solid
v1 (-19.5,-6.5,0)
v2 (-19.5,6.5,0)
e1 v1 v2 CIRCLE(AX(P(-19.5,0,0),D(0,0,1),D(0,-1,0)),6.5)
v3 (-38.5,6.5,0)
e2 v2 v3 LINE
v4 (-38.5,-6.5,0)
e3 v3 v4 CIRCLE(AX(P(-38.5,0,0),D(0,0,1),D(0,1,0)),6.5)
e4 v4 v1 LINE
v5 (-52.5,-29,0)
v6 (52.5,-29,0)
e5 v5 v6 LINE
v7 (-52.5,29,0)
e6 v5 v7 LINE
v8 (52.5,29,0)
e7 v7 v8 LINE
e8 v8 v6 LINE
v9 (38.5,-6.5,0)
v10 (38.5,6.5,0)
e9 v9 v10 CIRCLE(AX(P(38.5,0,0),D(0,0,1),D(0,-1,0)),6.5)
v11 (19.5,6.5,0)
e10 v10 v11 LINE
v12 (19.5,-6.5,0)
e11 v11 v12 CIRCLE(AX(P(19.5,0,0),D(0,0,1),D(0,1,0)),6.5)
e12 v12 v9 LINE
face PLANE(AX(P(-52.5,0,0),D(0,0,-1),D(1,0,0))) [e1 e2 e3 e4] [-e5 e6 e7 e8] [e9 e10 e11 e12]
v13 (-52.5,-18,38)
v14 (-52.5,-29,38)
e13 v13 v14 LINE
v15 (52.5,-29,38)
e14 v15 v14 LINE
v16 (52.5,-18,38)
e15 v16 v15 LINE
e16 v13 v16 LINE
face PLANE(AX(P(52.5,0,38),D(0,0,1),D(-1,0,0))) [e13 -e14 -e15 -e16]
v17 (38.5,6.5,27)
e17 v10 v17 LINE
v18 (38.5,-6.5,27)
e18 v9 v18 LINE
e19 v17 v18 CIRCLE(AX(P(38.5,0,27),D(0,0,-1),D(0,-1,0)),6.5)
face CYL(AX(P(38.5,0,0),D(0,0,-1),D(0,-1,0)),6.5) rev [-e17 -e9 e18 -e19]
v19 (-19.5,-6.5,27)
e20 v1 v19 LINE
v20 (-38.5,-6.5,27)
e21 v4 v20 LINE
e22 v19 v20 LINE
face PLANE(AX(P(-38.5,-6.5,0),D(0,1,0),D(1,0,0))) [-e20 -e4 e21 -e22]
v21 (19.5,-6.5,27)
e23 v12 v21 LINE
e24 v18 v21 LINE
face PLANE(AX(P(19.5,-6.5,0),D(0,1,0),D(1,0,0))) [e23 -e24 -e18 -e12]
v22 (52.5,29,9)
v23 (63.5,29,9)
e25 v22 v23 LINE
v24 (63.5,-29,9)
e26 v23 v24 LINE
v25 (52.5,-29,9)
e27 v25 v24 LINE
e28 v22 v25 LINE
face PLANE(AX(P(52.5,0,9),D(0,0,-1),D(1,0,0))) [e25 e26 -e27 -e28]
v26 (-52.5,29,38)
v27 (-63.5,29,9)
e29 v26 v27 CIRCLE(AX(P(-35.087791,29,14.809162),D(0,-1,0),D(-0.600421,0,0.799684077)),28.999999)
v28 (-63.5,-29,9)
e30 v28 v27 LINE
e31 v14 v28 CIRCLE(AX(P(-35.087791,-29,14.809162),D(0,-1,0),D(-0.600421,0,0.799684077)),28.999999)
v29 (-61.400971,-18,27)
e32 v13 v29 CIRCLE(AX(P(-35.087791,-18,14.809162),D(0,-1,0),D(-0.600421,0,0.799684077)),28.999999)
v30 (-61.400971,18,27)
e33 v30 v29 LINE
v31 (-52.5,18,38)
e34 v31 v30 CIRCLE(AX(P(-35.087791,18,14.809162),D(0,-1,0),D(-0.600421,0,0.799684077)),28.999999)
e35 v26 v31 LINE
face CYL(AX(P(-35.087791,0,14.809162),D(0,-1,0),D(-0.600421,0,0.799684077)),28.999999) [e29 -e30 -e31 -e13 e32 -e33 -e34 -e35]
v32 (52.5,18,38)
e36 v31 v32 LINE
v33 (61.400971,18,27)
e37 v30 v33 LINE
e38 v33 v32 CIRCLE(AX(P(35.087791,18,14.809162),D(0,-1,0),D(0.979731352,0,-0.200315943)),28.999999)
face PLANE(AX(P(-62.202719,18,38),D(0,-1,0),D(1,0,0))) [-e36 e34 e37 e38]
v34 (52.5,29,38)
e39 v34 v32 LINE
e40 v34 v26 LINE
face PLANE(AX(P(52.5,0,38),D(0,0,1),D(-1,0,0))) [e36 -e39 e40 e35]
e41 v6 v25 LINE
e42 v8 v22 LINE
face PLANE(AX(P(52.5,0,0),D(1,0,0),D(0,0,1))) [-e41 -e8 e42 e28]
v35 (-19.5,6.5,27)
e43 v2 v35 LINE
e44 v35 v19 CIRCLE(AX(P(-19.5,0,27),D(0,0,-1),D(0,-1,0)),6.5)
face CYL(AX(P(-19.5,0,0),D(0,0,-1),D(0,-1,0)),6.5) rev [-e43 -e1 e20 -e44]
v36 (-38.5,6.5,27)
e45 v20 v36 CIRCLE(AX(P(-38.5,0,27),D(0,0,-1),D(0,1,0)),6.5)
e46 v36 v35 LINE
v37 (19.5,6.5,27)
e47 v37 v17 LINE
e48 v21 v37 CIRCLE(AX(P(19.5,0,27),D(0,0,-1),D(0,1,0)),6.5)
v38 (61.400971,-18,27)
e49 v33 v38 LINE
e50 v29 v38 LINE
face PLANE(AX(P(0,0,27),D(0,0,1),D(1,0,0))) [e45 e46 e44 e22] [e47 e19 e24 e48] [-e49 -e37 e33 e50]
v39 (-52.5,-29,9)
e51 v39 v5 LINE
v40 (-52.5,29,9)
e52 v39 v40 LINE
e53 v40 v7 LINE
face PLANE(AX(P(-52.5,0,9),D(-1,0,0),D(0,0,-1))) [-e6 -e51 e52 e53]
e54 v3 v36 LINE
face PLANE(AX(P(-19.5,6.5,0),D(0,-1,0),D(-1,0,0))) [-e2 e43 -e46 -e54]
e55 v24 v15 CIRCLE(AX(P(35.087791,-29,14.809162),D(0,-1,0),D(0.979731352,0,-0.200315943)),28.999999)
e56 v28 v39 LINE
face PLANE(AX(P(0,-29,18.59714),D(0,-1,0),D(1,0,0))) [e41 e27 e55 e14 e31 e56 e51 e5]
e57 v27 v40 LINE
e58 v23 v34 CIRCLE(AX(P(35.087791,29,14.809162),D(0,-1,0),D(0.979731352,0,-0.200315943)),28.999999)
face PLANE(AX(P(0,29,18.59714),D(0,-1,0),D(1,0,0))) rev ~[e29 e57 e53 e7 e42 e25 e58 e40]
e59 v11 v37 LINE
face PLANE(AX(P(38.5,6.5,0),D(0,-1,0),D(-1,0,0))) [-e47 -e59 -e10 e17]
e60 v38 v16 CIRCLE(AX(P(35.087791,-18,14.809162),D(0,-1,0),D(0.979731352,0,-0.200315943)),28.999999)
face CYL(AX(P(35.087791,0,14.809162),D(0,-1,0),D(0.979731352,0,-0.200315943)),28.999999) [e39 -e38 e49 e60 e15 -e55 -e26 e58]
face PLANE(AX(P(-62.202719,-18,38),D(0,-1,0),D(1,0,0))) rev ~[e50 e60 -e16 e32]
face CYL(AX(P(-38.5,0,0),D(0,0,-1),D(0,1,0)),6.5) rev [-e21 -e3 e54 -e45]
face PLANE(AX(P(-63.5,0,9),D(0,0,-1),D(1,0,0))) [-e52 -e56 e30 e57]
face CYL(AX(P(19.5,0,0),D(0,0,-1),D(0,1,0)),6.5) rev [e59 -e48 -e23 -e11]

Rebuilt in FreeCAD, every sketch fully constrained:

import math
import FreeCAD as App
import Part
import Sketcher
from FreeCAD import Vector
Q = App.Units.Quantity


def add_polygon(sketch, points):
    """Adds a closed chain of lines whose ends are joined by coincident constraints."""
    first, n = sketch.GeometryCount, len(points)
    for a, b in zip(points, points[1:] + points[:1]):
        sketch.addGeometry(Part.LineSegment(App.Vector(*a, 0), App.Vector(*b, 0)), False)
    for i in range(n):
        sketch.addConstraint(Sketcher.Constraint("Coincident", first + i, 2, first + (i + 1) % n, 1))

doc = App.newDocument("Part")
params = doc.addObject("Spreadsheet::Sheet", "Params")
for row, (alias, value) in enumerate([
    ("sketch1_radius", "28.999999 mm"),
    ("sketch1_width", "105 mm"),
    ("sketch1_width2", "11 mm"),
    ("sketch1_height", "9 mm"),
    ("pad1_length", "58 mm"),
    ("sketch2_height", "36 mm"),
    ("pocket1_length", "11 mm"),
    ("sketch3_radius", "6.5 mm"),
    ("sketch3_width", "19 mm"),
], start=1):
    params.set(f"A{row}", alias)
    params.set(f"B{row}", "=" + value)
    params.setAlias(f"B{row}", alias)

body = doc.addObject("PartDesign::Body", "Body")

# Sketch on XZ plane
sketch1 = body.newObject("Sketcher::SketchObject", "Sketch")
sketch1.AttachmentSupport = (doc.getObject("XZ_Plane"), [""])
sketch1.MapMode = "FlatFace"
sketch1.addGeometry(Part.LineSegment(Vector(-52, 0, 0), Vector(52, 0, 0)), False)
sketch1.addGeometry(Part.LineSegment(Vector(52, 0, 0), Vector(52, 9, 0)), False)
sketch1.addGeometry(Part.LineSegment(Vector(52, 9, 0), Vector(64, 9, 0)), False)
sketch1.addGeometry(Part.ArcOfCircle(Part.Circle(Vector(35, 15, 0), Vector(0, 0, 1), 29), math.radians(-12), math.radians(53)), False)
sketch1.addGeometry(Part.LineSegment(Vector(52, 38, 0), Vector(-52, 38, 0)), False)
sketch1.addGeometry(Part.ArcOfCircle(Part.Circle(Vector(-35, 15, 0), Vector(0, 0, 1), 29), math.radians(127), math.radians(192)), False)
sketch1.addGeometry(Part.LineSegment(Vector(-64, 9, 0), Vector(-52, 9, 0)), False)
sketch1.addGeometry(Part.LineSegment(Vector(-52, 9, 0), Vector(-52, 0, 0)), False)
sketch1.addConstraint(Sketcher.Constraint("Coincident", 0, 2, 1, 1))
sketch1.addConstraint(Sketcher.Constraint("Coincident", 1, 2, 2, 1))
sketch1.addConstraint(Sketcher.Constraint("Coincident", 2, 2, 3, 1))
sketch1.addConstraint(Sketcher.Constraint("Coincident", 3, 2, 4, 1))
sketch1.addConstraint(Sketcher.Constraint("Coincident", 4, 2, 5, 1))
sketch1.addConstraint(Sketcher.Constraint("Coincident", 5, 2, 6, 1))
sketch1.addConstraint(Sketcher.Constraint("Coincident", 6, 2, 7, 1))
sketch1.addConstraint(Sketcher.Constraint("Coincident", 7, 2, 0, 1))
sketch1.addConstraint(Sketcher.Constraint("Horizontal", 0))
sketch1.addConstraint(Sketcher.Constraint("Vertical", 1))
sketch1.addConstraint(Sketcher.Constraint("Horizontal", 2))
sketch1.addConstraint(Sketcher.Constraint("Horizontal", 4))
sketch1.addConstraint(Sketcher.Constraint("Horizontal", 6))
sketch1.addConstraint(Sketcher.Constraint("Vertical", 7))
sketch1.addConstraint(Sketcher.Constraint("Equal", 3, 5))
sketch1.addConstraint(Sketcher.Constraint("Symmetric", 0, 2, 7, 2, -1, 1))
sketch1.addConstraint(Sketcher.Constraint("Symmetric", 3, 3, 5, 3, -2))
sketch1.addConstraint(Sketcher.Constraint("Horizontal", 2, 2, 5, 2))
sketch1.addConstraint(Sketcher.Constraint("Vertical", 1, 2, 3, 2))
sketch1.addConstraint(Sketcher.Constraint("Radius", 3, Q("28.999999 mm")))
sketch1.addConstraint(Sketcher.Constraint("DistanceX", 0, 1, 0, 2, Q("105 mm")))
sketch1.addConstraint(Sketcher.Constraint("DistanceX", 2, 1, 2, 2, Q("11 mm")))
sketch1.addConstraint(Sketcher.Constraint("DistanceY", 1, 1, 1, 2, Q("9 mm")))
sketch1.addConstraint(Sketcher.Constraint("DistanceY", -1, 1, 3, 2, Q("38 mm")))
sketch1.setExpression("Constraints[19]", "Params.sketch1_radius")
sketch1.setExpression("Constraints[20]", "Params.sketch1_width")
sketch1.setExpression("Constraints[21]", "Params.sketch1_width2")
sketch1.setExpression("Constraints[22]", "Params.sketch1_height")
pad1 = body.newObject("PartDesign::Pad", "Pad")
pad1.Profile = sketch1
pad1.setExpression("Length", "Params.pad1_length")
pad1.Midplane = True

# Sketch on XY plane
sketch2 = body.newObject("Sketcher::SketchObject", "Sketch001")
sketch2.AttachmentSupport = (doc.getObject("XY_Plane"), [""])
sketch2.MapMode = "FlatFace"
sketch2.AttachmentOffset = App.Placement(Vector(0, 0, 38), App.Rotation())
add_polygon(sketch2, [(-62, 18), (-62, -18), (62, -18), (62, 18)])  # lines 0-3
sketch2.addConstraint(Sketcher.Constraint("Vertical", 0))
sketch2.addConstraint(Sketcher.Constraint("Horizontal", 1))
sketch2.addConstraint(Sketcher.Constraint("Vertical", 2))
sketch2.addConstraint(Sketcher.Constraint("Horizontal", 3))
sketch2.addConstraint(Sketcher.Constraint("Symmetric", 0, 2, 2, 2, -1, 1))
sketch2.addConstraint(Sketcher.Constraint("DistanceY", 0, 2, 0, 1, Q("36 mm")))
sketch2.addConstraint(Sketcher.Constraint("DistanceX", 1, 1, 1, 2, Q("124.405438 mm")))
sketch2.setExpression("Constraints[9]", "Params.sketch2_height")
pocket1 = body.newObject("PartDesign::Pocket", "Pocket")
pocket1.Profile = sketch2
pocket1.setExpression("Length", "Params.pocket1_length")

# Sketch on XY plane
sketch3 = body.newObject("Sketcher::SketchObject", "Sketch002")
sketch3.AttachmentSupport = (doc.getObject("XY_Plane"), [""])
sketch3.MapMode = "FlatFace"
sketch3.addGeometry(Part.LineSegment(Vector(-20, 6, 0), Vector(-38, 6, 0)), False)
sketch3.addGeometry(Part.ArcOfCircle(Part.Circle(Vector(-38, 0, 0), Vector(0, 0, 1), 6), math.radians(90), math.radians(270)), False)
sketch3.addGeometry(Part.LineSegment(Vector(-38, -6, 0), Vector(-20, -6, 0)), False)
sketch3.addGeometry(Part.ArcOfCircle(Part.Circle(Vector(-20, 0, 0), Vector(0, 0, 1), 6), math.radians(-90), math.radians(90)), False)
sketch3.addGeometry(Part.ArcOfCircle(Part.Circle(Vector(20, 0, 0), Vector(0, 0, 1), 6), math.radians(90), math.radians(270)), False)
sketch3.addGeometry(Part.LineSegment(Vector(20, -6, 0), Vector(38, -6, 0)), False)
sketch3.addGeometry(Part.ArcOfCircle(Part.Circle(Vector(38, 0, 0), Vector(0, 0, 1), 6), math.radians(-90), math.radians(90)), False)
sketch3.addGeometry(Part.LineSegment(Vector(38, 6, 0), Vector(20, 6, 0)), False)
sketch3.addConstraint(Sketcher.Constraint("Tangent", 0, 2, 1, 1))
sketch3.addConstraint(Sketcher.Constraint("Tangent", 1, 2, 2, 1))
sketch3.addConstraint(Sketcher.Constraint("Tangent", 2, 2, 3, 1))
sketch3.addConstraint(Sketcher.Constraint("Tangent", 3, 2, 0, 1))
sketch3.addConstraint(Sketcher.Constraint("Tangent", 4, 2, 5, 1))
sketch3.addConstraint(Sketcher.Constraint("Tangent", 5, 2, 6, 1))
sketch3.addConstraint(Sketcher.Constraint("Tangent", 6, 2, 7, 1))
sketch3.addConstraint(Sketcher.Constraint("Tangent", 7, 2, 4, 1))
sketch3.addConstraint(Sketcher.Constraint("Horizontal", 0))
sketch3.addConstraint(Sketcher.Constraint("Horizontal", 2))
sketch3.addConstraint(Sketcher.Constraint("Horizontal", 5))
sketch3.addConstraint(Sketcher.Constraint("Horizontal", 7))
sketch3.addConstraint(Sketcher.Constraint("Equal", 3, 4))
sketch3.addConstraint(Sketcher.Constraint("Symmetric", 3, 3, 4, 3, -1, 1))
sketch3.addConstraint(Sketcher.Constraint("Symmetric", 1, 3, 6, 3, -2))
sketch3.addConstraint(Sketcher.Constraint("Radius", 1, Q("6.5 mm")))
sketch3.addConstraint(Sketcher.Constraint("DistanceX", 0, 2, 0, 1, Q("19 mm")))
sketch3.addConstraint(Sketcher.Constraint("DistanceX", 3, 3, 4, 3, Q("39 mm")))
sketch3.setExpression("Constraints[15]", "Params.sketch3_radius")
sketch3.setExpression("Constraints[16]", "Params.sketch3_width")
pocket2 = body.newObject("PartDesign::Pocket", "Pocket001")
pocket2.Profile = sketch3
pocket2.Type = "ThroughAll"
pocket2.Reversed = True

doc.recompute()
